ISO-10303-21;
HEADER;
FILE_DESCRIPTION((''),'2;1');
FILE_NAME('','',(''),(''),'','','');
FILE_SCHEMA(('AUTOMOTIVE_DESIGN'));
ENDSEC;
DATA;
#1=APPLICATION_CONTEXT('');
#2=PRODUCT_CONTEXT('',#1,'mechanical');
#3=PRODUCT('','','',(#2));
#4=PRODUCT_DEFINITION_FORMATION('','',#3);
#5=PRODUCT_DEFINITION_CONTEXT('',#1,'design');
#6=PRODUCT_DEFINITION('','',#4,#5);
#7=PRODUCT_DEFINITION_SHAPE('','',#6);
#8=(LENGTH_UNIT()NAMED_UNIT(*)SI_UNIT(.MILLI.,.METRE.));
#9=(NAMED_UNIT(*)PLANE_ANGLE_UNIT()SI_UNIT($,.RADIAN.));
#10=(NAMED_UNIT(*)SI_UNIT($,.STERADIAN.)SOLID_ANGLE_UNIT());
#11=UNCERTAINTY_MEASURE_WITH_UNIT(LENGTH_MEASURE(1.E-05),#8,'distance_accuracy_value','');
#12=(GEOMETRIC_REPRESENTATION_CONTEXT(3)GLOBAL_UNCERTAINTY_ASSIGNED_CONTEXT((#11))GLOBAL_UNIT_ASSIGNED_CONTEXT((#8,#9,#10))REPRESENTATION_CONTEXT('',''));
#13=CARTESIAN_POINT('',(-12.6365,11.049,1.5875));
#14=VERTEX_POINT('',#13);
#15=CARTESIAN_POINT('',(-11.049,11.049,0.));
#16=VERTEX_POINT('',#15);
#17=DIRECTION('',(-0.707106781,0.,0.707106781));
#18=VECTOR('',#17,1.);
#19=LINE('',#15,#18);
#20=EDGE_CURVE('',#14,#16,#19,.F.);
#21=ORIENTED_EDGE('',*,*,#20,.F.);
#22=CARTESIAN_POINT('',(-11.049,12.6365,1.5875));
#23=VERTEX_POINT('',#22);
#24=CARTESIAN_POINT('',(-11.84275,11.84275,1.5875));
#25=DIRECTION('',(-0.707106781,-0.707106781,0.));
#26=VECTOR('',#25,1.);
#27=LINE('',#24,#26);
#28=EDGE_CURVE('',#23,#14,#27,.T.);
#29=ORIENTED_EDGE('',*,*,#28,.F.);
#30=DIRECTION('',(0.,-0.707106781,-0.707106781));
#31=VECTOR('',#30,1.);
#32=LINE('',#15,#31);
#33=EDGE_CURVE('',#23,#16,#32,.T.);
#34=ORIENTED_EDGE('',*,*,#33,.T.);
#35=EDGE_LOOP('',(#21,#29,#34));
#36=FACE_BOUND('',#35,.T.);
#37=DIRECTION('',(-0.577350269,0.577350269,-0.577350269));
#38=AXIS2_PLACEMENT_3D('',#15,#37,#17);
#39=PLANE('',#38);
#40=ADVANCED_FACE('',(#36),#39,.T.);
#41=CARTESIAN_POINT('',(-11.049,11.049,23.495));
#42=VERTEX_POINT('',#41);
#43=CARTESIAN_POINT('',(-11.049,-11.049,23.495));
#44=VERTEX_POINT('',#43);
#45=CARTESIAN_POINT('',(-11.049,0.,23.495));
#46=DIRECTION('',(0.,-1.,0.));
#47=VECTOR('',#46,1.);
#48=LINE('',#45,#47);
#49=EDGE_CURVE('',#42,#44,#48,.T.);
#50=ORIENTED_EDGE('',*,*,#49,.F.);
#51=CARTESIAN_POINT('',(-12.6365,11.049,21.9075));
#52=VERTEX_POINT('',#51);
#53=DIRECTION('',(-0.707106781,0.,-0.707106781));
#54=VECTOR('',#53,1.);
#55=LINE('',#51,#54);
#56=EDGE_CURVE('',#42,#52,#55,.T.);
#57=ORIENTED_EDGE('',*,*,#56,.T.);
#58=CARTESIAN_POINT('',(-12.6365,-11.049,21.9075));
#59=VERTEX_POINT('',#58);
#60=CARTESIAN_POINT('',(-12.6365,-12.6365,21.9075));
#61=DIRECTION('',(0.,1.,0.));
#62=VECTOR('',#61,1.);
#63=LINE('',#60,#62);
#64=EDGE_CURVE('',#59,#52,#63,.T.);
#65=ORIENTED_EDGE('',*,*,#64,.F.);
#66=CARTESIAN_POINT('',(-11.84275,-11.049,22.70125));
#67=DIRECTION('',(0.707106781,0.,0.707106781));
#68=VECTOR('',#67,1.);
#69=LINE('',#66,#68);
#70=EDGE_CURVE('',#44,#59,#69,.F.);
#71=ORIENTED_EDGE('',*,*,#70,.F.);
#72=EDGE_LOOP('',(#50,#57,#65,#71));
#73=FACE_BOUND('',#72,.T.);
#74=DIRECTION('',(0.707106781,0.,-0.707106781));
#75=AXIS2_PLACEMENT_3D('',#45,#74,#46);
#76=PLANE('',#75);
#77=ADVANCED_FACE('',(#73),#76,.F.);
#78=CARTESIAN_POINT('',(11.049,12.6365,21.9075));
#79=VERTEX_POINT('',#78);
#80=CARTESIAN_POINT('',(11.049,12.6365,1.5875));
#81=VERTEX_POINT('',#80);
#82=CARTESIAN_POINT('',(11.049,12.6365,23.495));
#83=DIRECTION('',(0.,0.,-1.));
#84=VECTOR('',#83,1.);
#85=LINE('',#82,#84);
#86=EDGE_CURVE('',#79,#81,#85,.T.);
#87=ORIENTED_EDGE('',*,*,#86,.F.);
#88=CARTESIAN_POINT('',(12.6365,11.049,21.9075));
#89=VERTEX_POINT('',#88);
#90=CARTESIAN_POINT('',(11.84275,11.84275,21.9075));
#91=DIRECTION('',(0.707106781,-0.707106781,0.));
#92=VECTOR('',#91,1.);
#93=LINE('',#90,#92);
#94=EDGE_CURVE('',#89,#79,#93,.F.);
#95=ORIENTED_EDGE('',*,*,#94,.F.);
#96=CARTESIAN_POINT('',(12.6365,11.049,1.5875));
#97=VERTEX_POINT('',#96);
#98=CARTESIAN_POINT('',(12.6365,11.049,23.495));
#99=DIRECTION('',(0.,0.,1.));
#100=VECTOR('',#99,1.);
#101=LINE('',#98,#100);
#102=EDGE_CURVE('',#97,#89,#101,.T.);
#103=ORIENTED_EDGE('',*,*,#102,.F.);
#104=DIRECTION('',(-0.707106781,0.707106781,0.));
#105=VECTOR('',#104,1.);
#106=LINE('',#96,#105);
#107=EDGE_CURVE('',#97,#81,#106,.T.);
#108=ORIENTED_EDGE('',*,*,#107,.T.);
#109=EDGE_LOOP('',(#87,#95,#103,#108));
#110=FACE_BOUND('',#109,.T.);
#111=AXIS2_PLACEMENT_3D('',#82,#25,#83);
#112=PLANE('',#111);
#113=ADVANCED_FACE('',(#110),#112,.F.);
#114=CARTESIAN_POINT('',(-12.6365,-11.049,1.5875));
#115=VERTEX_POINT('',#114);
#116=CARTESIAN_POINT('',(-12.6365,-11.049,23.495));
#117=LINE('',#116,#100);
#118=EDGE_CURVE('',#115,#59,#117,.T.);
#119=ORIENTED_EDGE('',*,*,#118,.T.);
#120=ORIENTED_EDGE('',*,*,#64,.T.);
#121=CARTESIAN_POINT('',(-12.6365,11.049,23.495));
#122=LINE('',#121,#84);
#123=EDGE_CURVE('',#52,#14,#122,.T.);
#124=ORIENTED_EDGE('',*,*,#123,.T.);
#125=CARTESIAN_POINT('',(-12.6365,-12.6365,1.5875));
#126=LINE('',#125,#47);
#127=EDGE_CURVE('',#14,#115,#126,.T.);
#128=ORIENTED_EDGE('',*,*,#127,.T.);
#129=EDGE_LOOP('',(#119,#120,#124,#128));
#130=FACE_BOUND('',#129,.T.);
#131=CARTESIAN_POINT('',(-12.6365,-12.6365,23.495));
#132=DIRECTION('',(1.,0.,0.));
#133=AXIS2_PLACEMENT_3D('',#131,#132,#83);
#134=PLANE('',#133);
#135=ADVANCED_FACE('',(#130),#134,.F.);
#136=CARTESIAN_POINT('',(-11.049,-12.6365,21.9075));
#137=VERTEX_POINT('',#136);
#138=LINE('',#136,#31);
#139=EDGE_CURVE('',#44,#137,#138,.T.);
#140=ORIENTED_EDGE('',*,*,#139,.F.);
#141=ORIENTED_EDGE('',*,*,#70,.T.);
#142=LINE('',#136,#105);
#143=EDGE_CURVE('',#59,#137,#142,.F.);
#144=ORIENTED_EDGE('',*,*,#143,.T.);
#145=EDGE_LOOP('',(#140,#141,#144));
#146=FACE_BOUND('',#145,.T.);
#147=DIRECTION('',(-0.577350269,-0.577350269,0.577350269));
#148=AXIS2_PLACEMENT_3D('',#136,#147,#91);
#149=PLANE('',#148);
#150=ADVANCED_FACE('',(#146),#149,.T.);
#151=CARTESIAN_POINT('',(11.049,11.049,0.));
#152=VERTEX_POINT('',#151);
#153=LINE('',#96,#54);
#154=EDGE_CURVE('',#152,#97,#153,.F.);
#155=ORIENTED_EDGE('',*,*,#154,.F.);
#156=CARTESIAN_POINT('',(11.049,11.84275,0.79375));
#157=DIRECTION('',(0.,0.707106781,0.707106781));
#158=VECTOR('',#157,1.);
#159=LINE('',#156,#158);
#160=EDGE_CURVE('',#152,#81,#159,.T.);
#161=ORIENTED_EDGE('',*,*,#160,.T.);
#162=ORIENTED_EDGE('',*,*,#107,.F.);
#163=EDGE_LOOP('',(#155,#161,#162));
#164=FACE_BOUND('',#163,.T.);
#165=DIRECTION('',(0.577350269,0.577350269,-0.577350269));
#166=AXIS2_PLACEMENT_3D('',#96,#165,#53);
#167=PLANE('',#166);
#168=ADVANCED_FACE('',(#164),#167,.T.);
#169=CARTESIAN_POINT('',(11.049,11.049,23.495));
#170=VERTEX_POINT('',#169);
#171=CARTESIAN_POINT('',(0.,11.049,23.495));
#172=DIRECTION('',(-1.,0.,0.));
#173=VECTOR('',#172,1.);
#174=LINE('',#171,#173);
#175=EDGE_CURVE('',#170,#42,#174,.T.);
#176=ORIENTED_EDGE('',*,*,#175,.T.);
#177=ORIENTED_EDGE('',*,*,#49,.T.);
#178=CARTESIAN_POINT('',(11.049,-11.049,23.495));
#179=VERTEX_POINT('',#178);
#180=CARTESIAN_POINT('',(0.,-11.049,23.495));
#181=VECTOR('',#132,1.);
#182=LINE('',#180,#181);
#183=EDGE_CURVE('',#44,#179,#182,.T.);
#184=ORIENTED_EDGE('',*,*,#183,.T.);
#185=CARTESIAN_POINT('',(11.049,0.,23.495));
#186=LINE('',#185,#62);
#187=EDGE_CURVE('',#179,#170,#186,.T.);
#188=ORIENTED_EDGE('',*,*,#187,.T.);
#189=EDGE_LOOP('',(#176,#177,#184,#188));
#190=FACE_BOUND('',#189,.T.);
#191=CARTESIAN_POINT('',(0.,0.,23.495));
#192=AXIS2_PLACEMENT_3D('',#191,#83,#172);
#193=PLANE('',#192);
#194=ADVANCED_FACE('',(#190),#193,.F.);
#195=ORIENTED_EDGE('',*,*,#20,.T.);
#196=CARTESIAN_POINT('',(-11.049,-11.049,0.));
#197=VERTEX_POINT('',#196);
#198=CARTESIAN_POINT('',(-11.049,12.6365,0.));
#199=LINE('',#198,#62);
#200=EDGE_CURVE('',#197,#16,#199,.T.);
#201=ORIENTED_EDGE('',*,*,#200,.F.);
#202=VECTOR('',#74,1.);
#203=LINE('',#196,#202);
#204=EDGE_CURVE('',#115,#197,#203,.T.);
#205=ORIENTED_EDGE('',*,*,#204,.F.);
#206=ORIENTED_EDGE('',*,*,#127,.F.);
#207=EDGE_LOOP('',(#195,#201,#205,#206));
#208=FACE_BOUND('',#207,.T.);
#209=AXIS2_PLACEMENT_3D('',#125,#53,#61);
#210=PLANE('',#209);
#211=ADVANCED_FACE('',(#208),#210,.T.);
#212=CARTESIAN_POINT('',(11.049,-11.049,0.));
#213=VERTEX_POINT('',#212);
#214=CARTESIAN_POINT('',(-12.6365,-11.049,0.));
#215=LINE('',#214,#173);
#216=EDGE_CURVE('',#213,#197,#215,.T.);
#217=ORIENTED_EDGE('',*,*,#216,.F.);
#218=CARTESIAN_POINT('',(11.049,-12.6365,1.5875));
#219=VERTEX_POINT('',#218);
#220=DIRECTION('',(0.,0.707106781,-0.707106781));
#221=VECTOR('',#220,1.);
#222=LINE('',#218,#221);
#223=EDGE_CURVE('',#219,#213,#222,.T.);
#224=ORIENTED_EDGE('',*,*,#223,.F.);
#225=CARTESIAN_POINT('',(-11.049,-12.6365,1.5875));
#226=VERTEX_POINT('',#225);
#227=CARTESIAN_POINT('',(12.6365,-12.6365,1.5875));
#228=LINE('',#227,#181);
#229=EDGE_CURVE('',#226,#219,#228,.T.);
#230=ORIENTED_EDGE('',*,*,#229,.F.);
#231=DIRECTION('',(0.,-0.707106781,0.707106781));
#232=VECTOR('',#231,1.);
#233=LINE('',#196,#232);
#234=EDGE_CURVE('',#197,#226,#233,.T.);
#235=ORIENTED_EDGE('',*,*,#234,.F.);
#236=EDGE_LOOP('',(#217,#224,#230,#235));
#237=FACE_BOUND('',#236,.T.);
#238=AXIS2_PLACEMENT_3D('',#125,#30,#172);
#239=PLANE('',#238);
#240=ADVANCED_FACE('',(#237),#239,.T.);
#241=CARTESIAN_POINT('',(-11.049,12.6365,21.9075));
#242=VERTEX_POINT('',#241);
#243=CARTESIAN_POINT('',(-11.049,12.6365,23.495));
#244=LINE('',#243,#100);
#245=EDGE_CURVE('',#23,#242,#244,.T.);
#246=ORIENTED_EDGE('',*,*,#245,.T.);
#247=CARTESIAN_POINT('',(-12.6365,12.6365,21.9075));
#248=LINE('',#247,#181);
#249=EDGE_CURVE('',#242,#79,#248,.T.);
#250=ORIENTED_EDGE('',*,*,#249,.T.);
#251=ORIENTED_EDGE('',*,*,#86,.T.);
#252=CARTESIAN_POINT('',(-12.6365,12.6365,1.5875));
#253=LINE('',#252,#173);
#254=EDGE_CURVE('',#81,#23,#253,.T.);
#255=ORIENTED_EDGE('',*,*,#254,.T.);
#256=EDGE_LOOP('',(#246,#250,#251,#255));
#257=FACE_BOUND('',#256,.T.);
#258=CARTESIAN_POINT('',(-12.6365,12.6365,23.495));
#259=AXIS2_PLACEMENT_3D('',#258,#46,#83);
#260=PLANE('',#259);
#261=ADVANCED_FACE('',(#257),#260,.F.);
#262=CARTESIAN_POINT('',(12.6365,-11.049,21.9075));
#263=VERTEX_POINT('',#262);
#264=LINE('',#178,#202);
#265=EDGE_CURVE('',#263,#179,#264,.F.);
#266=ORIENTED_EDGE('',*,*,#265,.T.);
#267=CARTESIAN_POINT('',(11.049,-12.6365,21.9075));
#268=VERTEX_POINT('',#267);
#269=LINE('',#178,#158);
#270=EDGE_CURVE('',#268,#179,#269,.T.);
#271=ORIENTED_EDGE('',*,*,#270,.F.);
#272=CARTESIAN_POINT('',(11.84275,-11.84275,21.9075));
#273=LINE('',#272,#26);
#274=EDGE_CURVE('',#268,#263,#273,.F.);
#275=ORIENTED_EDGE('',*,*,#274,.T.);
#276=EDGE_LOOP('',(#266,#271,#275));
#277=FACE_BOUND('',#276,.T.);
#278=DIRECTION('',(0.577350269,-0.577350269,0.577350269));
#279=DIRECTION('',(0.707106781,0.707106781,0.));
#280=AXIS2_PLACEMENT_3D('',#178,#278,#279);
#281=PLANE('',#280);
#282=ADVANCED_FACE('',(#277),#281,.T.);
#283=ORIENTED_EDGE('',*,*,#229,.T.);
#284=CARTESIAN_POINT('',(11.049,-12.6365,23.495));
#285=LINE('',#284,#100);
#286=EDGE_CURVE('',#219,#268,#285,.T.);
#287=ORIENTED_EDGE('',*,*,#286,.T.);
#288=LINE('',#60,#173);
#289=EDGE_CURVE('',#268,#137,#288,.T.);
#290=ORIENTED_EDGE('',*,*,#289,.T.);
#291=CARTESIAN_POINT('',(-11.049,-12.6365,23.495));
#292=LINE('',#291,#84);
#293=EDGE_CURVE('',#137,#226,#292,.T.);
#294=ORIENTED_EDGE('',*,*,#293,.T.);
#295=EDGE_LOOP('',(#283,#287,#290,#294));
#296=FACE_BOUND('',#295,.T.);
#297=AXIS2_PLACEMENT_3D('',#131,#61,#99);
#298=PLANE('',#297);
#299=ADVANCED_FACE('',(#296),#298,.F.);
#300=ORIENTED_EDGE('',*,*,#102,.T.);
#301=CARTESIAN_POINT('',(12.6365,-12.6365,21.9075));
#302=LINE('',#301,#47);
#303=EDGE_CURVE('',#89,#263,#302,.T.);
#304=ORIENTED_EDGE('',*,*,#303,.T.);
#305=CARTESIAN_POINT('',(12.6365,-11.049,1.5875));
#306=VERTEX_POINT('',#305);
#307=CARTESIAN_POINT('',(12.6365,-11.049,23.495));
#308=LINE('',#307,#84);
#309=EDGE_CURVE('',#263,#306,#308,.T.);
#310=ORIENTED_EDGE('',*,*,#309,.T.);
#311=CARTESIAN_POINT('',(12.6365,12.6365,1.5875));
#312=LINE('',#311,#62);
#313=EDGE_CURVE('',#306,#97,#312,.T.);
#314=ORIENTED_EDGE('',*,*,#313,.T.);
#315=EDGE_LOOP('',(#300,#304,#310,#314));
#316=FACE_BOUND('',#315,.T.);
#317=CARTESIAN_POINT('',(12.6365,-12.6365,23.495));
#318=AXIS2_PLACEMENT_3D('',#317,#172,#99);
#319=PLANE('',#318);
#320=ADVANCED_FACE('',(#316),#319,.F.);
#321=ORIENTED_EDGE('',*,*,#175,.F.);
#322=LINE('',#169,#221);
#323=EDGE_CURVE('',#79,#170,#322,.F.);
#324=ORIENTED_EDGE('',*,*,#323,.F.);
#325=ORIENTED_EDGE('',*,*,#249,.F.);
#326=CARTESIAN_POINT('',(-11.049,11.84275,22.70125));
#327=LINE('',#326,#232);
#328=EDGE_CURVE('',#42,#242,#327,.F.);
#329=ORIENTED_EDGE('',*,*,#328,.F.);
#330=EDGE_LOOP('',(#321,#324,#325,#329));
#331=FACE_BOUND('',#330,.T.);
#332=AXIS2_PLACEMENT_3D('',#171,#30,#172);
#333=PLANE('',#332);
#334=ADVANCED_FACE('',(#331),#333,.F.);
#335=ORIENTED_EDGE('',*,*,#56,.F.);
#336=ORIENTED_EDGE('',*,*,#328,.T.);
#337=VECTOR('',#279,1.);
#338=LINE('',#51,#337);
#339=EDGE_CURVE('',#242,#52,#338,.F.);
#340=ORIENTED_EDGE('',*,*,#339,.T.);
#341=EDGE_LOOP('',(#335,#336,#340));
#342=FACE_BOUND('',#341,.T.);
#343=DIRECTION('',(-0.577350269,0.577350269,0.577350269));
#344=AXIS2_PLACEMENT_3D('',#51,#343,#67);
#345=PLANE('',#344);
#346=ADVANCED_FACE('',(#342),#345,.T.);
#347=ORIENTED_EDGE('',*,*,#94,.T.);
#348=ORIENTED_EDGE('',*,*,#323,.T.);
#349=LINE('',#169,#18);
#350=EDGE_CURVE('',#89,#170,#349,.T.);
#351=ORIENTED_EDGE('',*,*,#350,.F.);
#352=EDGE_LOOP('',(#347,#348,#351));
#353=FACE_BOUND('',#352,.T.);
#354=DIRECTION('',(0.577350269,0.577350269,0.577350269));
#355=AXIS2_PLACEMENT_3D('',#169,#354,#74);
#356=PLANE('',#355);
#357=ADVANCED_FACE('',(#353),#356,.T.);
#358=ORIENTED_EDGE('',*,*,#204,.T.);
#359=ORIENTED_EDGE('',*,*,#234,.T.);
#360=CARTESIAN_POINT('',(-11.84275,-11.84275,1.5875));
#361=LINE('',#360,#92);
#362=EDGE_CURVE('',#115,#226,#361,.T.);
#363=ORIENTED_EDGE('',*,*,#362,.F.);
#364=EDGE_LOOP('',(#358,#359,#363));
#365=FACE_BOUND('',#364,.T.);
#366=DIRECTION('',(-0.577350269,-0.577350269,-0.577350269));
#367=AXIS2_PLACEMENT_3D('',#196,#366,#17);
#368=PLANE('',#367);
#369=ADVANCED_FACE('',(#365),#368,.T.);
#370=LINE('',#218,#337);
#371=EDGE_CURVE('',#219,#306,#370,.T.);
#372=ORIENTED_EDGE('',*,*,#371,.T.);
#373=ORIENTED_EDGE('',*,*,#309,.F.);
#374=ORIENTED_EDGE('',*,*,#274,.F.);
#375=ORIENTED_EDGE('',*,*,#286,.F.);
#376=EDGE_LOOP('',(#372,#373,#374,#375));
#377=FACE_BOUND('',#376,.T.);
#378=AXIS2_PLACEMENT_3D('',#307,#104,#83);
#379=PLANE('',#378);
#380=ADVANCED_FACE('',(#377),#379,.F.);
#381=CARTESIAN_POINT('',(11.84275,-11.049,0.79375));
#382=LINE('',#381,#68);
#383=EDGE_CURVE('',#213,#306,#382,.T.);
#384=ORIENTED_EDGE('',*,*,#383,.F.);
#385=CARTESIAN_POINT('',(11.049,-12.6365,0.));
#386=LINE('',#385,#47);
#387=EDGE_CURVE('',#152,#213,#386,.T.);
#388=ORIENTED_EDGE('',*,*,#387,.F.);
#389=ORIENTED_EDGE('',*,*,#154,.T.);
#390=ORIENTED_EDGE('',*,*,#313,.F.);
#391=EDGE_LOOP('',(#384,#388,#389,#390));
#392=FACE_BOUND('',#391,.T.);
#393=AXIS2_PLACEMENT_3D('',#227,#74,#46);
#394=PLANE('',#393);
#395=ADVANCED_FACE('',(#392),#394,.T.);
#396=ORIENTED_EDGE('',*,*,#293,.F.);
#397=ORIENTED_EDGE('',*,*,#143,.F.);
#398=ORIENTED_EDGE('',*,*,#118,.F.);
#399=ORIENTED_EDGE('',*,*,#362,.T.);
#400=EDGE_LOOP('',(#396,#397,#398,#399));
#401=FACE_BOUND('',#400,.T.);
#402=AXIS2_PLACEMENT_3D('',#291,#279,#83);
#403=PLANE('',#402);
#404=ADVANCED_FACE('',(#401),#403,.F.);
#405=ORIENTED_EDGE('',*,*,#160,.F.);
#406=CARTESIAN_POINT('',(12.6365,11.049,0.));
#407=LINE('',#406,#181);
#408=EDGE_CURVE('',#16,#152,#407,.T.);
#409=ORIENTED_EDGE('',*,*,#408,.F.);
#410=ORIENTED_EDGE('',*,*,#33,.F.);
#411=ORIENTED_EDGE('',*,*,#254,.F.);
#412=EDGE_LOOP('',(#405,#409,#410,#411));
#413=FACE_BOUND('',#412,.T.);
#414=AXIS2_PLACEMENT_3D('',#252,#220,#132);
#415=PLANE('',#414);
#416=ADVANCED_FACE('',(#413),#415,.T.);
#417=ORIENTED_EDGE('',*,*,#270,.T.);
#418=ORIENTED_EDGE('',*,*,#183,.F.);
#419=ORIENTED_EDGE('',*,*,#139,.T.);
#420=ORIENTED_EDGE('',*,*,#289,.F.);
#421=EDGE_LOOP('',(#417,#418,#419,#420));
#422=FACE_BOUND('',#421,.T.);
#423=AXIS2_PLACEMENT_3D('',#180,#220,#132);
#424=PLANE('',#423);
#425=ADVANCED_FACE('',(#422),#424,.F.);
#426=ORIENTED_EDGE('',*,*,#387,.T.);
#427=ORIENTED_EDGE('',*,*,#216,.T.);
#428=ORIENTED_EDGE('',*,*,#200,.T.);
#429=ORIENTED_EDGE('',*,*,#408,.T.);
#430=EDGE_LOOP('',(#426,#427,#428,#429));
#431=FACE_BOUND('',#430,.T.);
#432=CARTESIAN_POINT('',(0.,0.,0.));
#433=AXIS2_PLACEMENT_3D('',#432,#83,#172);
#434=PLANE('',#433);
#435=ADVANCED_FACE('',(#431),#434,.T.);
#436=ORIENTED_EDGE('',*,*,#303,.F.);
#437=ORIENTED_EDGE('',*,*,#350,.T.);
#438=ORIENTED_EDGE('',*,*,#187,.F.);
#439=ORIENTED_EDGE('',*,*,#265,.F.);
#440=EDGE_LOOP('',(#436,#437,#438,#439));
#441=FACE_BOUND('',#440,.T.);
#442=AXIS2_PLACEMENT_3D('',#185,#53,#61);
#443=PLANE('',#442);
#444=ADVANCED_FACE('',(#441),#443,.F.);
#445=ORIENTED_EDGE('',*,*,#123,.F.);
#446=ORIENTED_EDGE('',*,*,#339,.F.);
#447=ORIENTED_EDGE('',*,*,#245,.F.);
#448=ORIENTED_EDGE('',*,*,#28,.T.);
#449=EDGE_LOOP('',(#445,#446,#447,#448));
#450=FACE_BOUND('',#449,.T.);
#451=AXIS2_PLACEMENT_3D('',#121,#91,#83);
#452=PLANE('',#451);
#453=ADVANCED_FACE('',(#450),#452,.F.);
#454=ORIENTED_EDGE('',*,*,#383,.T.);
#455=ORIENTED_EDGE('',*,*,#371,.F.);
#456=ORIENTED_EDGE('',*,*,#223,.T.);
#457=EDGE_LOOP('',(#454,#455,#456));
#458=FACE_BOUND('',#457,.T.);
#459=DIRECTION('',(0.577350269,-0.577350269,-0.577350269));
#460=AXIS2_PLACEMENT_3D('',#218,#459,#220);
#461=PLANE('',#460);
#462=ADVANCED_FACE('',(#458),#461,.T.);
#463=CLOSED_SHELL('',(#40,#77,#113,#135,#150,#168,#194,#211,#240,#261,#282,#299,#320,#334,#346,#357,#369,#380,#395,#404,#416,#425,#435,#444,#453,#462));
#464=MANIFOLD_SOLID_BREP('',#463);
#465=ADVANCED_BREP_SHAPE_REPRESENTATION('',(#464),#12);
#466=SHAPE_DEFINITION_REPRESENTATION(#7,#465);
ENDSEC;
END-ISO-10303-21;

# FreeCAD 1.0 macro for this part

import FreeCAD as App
import Part
import Sketcher

V = App.Vector
Q = App.Units.Quantity


def add_polygon(sketch, points):
    """Adds a closed chain of lines whose ends are joined by coincident constraints."""
    first, n = sketch.GeometryCount, len(points)
    for a, b in zip(points, points[1:] + points[:1]):
        sketch.addGeometry(Part.LineSegment(App.Vector(*a, 0), App.Vector(*b, 0)), False)
    for i in range(n):
        sketch.addConstraint(Sketcher.Constraint("Coincident", first + i, 2, first + (i + 1) % n, 1))

doc = App.newDocument("Part")
body = doc.addObject("PartDesign::Body", "Body")

sketch1 = body.newObject("Sketcher::SketchObject", "Sketch")
sketch1.AttachmentSupport = (doc.getObject("XY_Plane"), [""])
sketch1.MapMode = "FlatFace"
add_polygon(sketch1, [(-12.6365, 12.6365), (-12.6365, -12.6365), (12.6365, -12.6365), (12.6365, 12.6365)])
sketch1.addConstraint(Sketcher.Constraint("Vertical", 0))
sketch1.addConstraint(Sketcher.Constraint("Horizontal", 1))
sketch1.addConstraint(Sketcher.Constraint("Vertical", 2))
sketch1.addConstraint(Sketcher.Constraint("Horizontal", 3))
sketch1.addConstraint(Sketcher.Constraint("Symmetric", 0, 2, 2, 2, -1, 1))
sketch1.addConstraint(Sketcher.Constraint("Equal", 3, 0))
sketch1.addConstraint(Sketcher.Constraint("DistanceX", 1, 1, 1, 2, Q("0.995 in")))
pad1 = body.newObject("PartDesign::Pad", "Pad")
pad1.Profile = sketch1
pad1.Length = Q("0.925 in")
doc.recompute()

chamfer = body.newObject("PartDesign::Chamfer", "Chamfer")
chamfer.Base = (pad1, ["Edge1"])
chamfer.UseAllEdges = True
chamfer.Size = Q("0.0625 in")

doc.recompute()
